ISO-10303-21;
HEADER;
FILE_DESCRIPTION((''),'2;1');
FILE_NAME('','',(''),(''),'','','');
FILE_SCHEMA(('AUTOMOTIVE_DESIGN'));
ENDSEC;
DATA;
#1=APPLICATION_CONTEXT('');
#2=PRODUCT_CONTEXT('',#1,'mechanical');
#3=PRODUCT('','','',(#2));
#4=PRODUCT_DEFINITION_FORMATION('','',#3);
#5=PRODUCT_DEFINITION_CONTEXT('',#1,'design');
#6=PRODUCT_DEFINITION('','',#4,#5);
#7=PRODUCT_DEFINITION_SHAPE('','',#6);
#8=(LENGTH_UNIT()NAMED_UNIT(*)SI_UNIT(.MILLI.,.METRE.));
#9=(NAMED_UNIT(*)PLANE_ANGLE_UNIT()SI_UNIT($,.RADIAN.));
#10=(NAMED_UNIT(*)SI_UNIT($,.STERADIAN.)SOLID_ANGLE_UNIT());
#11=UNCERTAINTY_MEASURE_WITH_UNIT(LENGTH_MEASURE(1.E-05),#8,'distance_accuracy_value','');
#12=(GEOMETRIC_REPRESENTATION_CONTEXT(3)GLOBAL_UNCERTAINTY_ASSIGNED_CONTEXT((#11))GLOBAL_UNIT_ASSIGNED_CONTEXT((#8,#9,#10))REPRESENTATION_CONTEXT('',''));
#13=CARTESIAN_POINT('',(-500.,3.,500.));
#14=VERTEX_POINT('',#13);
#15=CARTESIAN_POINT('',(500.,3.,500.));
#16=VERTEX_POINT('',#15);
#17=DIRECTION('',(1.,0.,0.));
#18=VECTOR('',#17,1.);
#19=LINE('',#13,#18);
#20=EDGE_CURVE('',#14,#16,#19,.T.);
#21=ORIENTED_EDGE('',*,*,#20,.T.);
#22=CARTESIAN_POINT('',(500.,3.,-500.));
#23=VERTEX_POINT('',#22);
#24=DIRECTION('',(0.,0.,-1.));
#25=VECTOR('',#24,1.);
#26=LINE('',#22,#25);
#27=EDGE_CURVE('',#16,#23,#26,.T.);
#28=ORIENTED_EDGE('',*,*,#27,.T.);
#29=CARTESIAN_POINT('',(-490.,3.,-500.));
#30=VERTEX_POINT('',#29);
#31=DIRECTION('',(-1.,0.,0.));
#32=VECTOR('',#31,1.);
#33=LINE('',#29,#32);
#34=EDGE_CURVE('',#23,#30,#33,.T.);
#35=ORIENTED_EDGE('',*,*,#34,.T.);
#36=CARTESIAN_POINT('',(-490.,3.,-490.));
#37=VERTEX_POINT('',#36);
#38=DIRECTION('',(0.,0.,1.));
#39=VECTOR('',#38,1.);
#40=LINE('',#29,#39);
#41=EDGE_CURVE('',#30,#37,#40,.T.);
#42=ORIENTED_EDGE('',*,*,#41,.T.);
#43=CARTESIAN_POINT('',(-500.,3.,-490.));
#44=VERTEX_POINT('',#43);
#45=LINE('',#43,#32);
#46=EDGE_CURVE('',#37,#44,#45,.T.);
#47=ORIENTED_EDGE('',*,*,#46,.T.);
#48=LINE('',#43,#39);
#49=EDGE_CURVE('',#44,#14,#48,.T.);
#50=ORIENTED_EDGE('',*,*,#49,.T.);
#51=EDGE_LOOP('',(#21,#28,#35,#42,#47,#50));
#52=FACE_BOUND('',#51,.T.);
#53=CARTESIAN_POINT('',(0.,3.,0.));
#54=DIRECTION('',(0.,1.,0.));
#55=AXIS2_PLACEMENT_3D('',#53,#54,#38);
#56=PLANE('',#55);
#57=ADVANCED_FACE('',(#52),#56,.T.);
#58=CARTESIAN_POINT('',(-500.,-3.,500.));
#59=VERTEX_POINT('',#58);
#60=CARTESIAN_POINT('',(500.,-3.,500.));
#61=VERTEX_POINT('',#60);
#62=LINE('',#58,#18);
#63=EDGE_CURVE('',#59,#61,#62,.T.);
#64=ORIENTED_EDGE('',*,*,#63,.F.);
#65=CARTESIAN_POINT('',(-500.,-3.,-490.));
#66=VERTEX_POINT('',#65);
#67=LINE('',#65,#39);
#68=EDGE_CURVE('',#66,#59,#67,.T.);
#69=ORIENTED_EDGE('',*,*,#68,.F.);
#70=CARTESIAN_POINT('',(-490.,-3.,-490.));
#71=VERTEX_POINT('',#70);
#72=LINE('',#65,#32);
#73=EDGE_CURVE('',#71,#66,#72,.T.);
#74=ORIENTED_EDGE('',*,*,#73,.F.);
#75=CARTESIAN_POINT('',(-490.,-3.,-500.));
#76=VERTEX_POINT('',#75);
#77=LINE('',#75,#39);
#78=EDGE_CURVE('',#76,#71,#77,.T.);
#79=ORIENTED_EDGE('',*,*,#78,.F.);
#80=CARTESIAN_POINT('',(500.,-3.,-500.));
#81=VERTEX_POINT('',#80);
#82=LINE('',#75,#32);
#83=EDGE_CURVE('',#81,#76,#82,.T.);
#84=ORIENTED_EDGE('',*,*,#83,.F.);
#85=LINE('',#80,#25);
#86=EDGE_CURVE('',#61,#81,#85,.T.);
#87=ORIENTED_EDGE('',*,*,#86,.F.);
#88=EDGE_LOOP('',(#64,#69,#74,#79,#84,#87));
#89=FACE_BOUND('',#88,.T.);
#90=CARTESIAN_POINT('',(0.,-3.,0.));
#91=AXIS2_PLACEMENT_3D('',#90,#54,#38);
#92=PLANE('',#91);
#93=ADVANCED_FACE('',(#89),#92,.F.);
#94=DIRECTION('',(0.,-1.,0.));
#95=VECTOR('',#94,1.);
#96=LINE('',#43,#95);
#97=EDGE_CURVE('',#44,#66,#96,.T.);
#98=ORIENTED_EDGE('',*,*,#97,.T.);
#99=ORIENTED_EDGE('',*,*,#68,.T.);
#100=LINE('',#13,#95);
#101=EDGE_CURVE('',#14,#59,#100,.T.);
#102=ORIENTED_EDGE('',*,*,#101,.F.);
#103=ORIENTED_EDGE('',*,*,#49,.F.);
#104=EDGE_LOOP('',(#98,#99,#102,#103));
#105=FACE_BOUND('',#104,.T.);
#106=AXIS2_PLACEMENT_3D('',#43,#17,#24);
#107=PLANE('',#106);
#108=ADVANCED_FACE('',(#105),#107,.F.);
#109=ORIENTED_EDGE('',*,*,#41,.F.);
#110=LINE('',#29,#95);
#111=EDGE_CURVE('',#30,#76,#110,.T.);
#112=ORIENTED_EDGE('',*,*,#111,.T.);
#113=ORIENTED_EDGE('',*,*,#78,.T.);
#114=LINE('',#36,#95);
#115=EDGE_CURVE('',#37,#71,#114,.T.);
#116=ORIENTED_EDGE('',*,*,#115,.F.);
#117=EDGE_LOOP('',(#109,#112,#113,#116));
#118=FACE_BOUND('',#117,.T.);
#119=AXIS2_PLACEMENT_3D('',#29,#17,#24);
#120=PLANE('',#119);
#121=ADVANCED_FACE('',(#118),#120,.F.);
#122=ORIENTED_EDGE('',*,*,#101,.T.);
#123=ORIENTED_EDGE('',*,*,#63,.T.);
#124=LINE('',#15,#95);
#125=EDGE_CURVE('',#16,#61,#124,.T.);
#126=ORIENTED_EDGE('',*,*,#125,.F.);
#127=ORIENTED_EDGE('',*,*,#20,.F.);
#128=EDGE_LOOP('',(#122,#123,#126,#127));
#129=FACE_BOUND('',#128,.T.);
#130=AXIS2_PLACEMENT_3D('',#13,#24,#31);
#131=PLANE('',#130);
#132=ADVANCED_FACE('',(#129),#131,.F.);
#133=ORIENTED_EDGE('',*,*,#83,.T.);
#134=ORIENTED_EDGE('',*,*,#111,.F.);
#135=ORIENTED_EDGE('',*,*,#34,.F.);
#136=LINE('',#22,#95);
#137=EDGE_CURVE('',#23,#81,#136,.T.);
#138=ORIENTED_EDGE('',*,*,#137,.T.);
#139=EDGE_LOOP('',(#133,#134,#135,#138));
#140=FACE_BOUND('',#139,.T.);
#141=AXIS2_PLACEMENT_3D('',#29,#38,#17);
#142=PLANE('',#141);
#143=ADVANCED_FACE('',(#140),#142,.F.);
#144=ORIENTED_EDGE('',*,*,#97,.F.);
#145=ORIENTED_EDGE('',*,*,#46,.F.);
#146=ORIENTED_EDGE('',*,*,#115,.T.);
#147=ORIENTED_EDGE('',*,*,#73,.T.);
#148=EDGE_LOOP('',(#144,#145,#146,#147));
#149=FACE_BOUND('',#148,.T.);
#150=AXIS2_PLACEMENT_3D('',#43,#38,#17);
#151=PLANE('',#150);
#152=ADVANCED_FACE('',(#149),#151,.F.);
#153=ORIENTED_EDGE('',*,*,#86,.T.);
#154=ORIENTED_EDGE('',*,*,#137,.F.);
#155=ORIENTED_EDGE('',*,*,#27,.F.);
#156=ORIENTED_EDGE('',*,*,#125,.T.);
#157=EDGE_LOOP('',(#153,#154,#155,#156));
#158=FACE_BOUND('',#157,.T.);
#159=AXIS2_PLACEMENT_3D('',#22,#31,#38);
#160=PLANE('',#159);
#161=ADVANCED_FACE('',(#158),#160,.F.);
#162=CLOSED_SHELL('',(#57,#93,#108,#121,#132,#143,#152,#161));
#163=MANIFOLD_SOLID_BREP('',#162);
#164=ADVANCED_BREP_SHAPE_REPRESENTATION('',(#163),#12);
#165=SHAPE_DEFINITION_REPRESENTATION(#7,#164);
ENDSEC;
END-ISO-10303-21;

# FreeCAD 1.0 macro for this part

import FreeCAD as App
import Part
import Sketcher

V = App.Vector


def add_polygon(sketch, points):
    """Adds a closed chain of lines whose ends are joined by coincident constraints."""
    first, n = sketch.GeometryCount, len(points)
    for a, b in zip(points, points[1:] + points[:1]):
        sketch.addGeometry(Part.LineSegment(App.Vector(*a, 0), App.Vector(*b, 0)), False)
    for i in range(n):
        sketch.addConstraint(Sketcher.Constraint("Coincident", first + i, 2, first + (i + 1) % n, 1))

doc = App.newDocument("Part")
params = doc.addObject("Spreadsheet::Sheet", "Params")
for row, (alias, value) in enumerate([
    ("sketch1_width", "990 mm"),
    ("sketch1_width2", "10 mm"),
    ("pad1_length", "6 mm"),
], start=1):
    params.set(f"A{row}", alias)
    params.set(f"B{row}", "=" + value)
    params.setAlias(f"B{row}", alias)

body = doc.addObject("PartDesign::Body", "Body")

# Sketch on XZ plane
sketch1 = body.newObject("Sketcher::SketchObject", "Sketch")
sketch1.AttachmentSupport = (doc.getObject("XZ_Plane"), [""])
sketch1.MapMode = "FlatFace"
add_polygon(sketch1, [(500, -500), (-490, -500), (-490, -490), (-500, -490), (-500, 500), (500, 500)])  # lines 0-5
sketch1.addConstraint([
    Sketcher.Constraint("Horizontal", 0),
    Sketcher.Constraint("Vertical", 1),
    Sketcher.Constraint("Horizontal", 2),
    Sketcher.Constraint("Vertical", 3),
    Sketcher.Constraint("Horizontal", 4),
    Sketcher.Constraint("Vertical", 5),
    Sketcher.Constraint("Symmetric", 3, 2, 5, 2, -1, 1),
    Sketcher.Constraint("Equal", 2, 1),
    Sketcher.Constraint("Equal", 0, 3),
    Sketcher.Constraint("DistanceX", 0, 2, 0, 1, 990.0),
    Sketcher.Constraint("DistanceX", 2, 2, 2, 1, 10.0),
])
sketch1.setExpression("Constraints[15]", "Params.sketch1_width")
sketch1.setExpression("Constraints[16]", "Params.sketch1_width2")
pad1 = body.newObject("PartDesign::Pad", "Pad")
pad1.Profile = sketch1
pad1.setExpression("Length", "Params.pad1_length")
pad1.Midplane = True

doc.recompute()
